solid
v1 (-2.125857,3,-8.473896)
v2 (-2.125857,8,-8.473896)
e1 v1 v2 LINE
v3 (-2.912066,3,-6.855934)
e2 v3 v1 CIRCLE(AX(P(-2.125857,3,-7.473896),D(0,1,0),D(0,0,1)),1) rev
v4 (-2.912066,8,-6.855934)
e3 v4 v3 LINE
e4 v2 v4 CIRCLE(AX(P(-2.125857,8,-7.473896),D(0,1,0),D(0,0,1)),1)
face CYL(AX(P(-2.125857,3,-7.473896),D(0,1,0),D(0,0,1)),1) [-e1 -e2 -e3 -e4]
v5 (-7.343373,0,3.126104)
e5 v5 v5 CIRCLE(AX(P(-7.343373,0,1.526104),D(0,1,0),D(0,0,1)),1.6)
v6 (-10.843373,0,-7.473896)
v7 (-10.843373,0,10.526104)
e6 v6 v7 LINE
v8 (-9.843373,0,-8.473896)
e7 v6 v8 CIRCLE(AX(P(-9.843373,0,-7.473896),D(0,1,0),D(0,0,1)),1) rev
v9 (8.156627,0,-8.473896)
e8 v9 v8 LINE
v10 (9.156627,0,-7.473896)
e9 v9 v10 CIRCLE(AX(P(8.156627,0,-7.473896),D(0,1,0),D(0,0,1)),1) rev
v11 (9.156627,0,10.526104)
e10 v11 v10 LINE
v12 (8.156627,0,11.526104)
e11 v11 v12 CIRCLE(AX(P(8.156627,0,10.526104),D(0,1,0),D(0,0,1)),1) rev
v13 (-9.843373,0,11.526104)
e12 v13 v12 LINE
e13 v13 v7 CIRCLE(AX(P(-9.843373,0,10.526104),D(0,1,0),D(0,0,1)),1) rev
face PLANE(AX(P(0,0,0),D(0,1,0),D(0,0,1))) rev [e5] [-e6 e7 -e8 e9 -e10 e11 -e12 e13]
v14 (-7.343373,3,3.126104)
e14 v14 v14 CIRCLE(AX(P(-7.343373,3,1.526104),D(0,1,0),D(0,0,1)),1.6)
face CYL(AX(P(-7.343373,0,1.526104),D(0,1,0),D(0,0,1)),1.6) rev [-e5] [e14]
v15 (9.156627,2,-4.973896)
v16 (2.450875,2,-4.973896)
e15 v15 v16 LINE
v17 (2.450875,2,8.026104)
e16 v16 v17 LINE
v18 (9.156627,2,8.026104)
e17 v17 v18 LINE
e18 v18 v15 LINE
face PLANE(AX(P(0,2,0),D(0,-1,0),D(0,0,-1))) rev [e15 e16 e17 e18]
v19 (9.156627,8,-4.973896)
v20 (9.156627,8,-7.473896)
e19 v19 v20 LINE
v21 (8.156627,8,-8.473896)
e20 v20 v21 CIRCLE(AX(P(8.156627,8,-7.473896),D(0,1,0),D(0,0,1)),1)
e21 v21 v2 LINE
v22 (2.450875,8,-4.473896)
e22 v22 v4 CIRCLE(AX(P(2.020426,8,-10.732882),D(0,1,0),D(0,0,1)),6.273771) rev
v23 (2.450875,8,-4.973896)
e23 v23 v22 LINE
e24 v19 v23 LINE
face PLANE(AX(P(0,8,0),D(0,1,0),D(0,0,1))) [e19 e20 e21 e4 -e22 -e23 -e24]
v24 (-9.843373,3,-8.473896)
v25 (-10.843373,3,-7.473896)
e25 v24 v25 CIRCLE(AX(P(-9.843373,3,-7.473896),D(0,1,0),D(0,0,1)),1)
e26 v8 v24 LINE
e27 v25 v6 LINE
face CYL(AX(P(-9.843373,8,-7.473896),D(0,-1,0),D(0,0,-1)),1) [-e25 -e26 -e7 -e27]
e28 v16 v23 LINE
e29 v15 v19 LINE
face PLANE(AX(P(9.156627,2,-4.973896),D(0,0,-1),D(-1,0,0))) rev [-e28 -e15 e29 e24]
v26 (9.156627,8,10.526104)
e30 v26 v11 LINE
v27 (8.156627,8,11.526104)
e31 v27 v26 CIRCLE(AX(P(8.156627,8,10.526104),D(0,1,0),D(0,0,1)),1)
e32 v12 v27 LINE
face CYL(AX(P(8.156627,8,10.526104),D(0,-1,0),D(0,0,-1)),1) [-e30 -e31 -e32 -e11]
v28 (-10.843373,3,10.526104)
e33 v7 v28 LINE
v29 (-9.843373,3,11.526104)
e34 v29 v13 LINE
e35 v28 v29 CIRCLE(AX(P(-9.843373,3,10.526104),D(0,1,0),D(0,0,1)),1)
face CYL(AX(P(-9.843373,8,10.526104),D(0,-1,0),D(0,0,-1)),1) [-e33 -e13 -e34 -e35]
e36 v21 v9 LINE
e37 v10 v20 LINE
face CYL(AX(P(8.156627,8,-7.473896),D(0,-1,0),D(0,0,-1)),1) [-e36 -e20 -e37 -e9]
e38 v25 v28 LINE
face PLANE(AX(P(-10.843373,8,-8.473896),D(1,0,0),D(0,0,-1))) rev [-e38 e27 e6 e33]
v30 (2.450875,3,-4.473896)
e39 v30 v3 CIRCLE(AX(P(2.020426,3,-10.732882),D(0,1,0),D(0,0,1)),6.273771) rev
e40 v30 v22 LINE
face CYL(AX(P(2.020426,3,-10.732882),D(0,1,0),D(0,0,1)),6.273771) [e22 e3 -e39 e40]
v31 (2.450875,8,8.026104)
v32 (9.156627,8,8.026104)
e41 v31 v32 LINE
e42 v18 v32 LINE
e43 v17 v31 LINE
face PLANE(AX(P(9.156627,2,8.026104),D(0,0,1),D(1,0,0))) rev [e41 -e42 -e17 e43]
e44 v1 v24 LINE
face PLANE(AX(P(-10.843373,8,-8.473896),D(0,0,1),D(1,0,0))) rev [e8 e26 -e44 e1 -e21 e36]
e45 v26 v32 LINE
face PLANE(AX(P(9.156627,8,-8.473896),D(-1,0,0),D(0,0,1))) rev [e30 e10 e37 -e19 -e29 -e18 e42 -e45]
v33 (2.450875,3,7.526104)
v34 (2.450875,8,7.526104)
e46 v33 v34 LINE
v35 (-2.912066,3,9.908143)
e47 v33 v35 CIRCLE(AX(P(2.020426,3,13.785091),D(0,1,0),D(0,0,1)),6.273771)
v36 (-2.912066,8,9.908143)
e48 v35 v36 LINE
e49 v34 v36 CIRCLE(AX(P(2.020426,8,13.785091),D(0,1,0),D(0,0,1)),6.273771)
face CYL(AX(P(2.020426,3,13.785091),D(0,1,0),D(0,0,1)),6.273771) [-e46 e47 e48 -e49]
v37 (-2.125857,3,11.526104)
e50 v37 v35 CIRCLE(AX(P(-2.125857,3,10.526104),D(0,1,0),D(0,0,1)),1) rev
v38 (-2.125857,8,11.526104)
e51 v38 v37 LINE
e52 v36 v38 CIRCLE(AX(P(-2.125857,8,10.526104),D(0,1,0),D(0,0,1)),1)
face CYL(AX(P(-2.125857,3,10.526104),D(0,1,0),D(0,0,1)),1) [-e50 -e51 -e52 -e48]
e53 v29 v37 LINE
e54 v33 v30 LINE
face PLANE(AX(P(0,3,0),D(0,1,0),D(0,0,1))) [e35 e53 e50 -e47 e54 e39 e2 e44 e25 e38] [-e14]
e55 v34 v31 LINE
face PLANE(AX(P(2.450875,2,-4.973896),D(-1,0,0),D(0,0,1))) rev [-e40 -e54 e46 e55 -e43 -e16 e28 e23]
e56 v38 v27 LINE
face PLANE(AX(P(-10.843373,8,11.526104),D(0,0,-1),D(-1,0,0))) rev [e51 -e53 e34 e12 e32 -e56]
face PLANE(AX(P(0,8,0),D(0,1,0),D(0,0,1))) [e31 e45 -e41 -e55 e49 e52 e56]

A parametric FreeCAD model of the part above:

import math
import FreeCAD as App
import Part
import Sketcher

V = App.Vector
Q = App.Units.Quantity


def edges_at(feature, points):
    """Names of the edges that pass closest to the given points."""
    edges = feature.Shape.Edges
    near = lambda p: min(range(len(edges)), key=lambda i: edges[i].distToShape(Part.Vertex(*p))[0])
    return sorted({f"Edge{near(p) + 1}" for p in points})


def add_polygon(sketch, points):
    """Adds a closed chain of lines whose ends are joined by coincident constraints."""
    first, n = sketch.GeometryCount, len(points)
    for a, b in zip(points, points[1:] + points[:1]):
        sketch.addGeometry(Part.LineSegment(App.Vector(*a, 0), App.Vector(*b, 0)), False)
    for i in range(n):
        sketch.addConstraint(Sketcher.Constraint("Coincident", first + i, 2, first + (i + 1) % n, 1))

doc = App.newDocument("Part")
body = doc.addObject("PartDesign::Body", "Body")

# Sketch on XZ plane
sketch1 = body.newObject("Sketcher::SketchObject", "Sketch")
sketch1.AttachmentSupport = (doc.getObject("XZ_Plane"), [""])
sketch1.MapMode = "FlatFace"
add_polygon(sketch1, [(-10.843373, -8.473896), (-10.843373, 11.526104), (9.156627, 11.526104), (9.156627, -8.473896)])  # lines 0-3
sketch1.addConstraint([
    Sketcher.Constraint("Vertical", 0),
    Sketcher.Constraint("Horizontal", 1),
    Sketcher.Constraint("Vertical", 2),
    Sketcher.Constraint("Horizontal", 3),
    Sketcher.Constraint("Equal", 3, 0),
    Sketcher.Constraint("DistanceX", 1, 1, 1, 2, Q("20 mm")),
    Sketcher.Constraint("DistanceX", 0, 2, -1, 1, Q("10.843373 mm")),
    Sketcher.Constraint("DistanceY", -1, 1, 0, 2, Q("11.526104 mm")),
])
pad1 = body.newObject("PartDesign::Pad", "Pad")
pad1.Profile = sketch1
pad1.Length = 8
pad1.Reversed = True

# Sketch on XZ plane
sketch2 = body.newObject("Sketcher::SketchObject", "Sketch001")
sketch2.AttachmentSupport = (doc.getObject("XZ_Plane"), [""])
sketch2.MapMode = "FlatFace"
sketch2.AttachmentOffset = App.Placement(V(0, 0, -8), App.Rotation())
add_polygon(sketch2, [(2.450875, -4.973896), (2.450875, 8.026104), (9.156627, 8.026104), (9.156627, -4.973896)])  # lines 0-3
sketch2.addConstraint([
    Sketcher.Constraint("Vertical", 0),
    Sketcher.Constraint("Horizontal", 1),
    Sketcher.Constraint("Vertical", 2),
    Sketcher.Constraint("Horizontal", 3),
    Sketcher.Constraint("DistanceY", 0, 1, 0, 2, Q("13 mm")),
    Sketcher.Constraint("DistanceX", 1, 1, 1, 2, Q("6.705751 mm")),
    Sketcher.Constraint("DistanceX", -1, 1, 0, 2, Q("2.450875 mm")),
    Sketcher.Constraint("DistanceY", -1, 1, 0, 2, Q("8.026104 mm")),
])
pocket1 = body.newObject("PartDesign::Pocket", "Pocket")
pocket1.Profile = sketch2
pocket1.Length = 6
pocket1.Reversed = True

# Sketch on XZ plane
sketch3 = body.newObject("Sketcher::SketchObject", "Sketch002")
sketch3.AttachmentSupport = (doc.getObject("XZ_Plane"), [""])
sketch3.MapMode = "FlatFace"
sketch3.AttachmentOffset = App.Placement(V(0, 0, -8), App.Rotation())
sketch3.addGeometry([
    Part.LineSegment(V(2.450875, 7.526104, 0), V(2.450875, -4.473896, 0)),  # 0
    Part.ArcOfCircle(Part.Circle(V(2.020426, -10.732882, 0), V(0, 0, 1), 6.273771), math.radians(86.065791), math.radians(93.934209)),  # 1
    Part.ArcOfCircle(Part.Circle(V(2.020426, -10.732882, 0), V(0, 0, 1), 6.273771), math.radians(93.934209), math.radians(158.895604)),  # 2
    Part.LineSegment(V(-3.832537, -8.473896, 0), V(-10.843373, -8.473896, 0)),  # 3
    Part.LineSegment(V(-10.843373, -8.473896, 0), V(-10.843373, 11.526104, 0)),  # 4
    Part.LineSegment(V(-10.843373, 11.526104, 0), V(-3.832537, 11.526104, 0)),  # 5
    Part.ArcOfCircle(Part.Circle(V(2.020426, 13.785091, 0), V(0, 0, 1), 6.273771), math.radians(-158.895604), math.radians(-93.934209)),  # 6
    Part.ArcOfCircle(Part.Circle(V(2.020426, 13.785091, 0), V(0, 0, 1), 6.273771), math.radians(-93.934209), math.radians(-86.065791)),  # 7
], False)
sketch3.addConstraint([
    Sketcher.Constraint("Coincident", 0, 2, 1, 1),
    Sketcher.Constraint("Tangent", 1, 2, 2, 1),
    Sketcher.Constraint("Coincident", 2, 2, 3, 1),
    Sketcher.Constraint("Coincident", 3, 2, 4, 1),
    Sketcher.Constraint("Coincident", 4, 2, 5, 1),
    Sketcher.Constraint("Coincident", 5, 2, 6, 1),
    Sketcher.Constraint("Tangent", 6, 2, 7, 1),
    Sketcher.Constraint("Coincident", 7, 2, 0, 1),
    Sketcher.Constraint("Vertical", 0),
    Sketcher.Constraint("Horizontal", 3),
    Sketcher.Constraint("Vertical", 4),
    Sketcher.Constraint("Horizontal", 5),
    Sketcher.Constraint("Equal", 1, 2),
    Sketcher.Constraint("Equal", 2, 6),
    Sketcher.Constraint("Equal", 6, 7),
    Sketcher.Constraint("Horizontal", 0, 2, 1, 2),
    Sketcher.Constraint("Horizontal", 6, 2, 7, 2),
    Sketcher.Constraint("Vertical", 2, 3, 6, 3),
    Sketcher.Constraint("Vertical", 2, 2, 5, 2),
    Sketcher.Constraint("DistanceY", 0, 2, 0, 1, Q("12 mm")),
    Sketcher.Constraint("DistanceY", 4, 1, 4, 2, Q("20 mm")),
    Sketcher.Constraint("Radius", 1, Q("6.273771 mm")),
    Sketcher.Constraint("DistanceX", 1, 2, 0, 2, Q("0.860899 mm")),
    Sketcher.Constraint("DistanceX", 3, 2, 2, 3, Q("12.863799 mm")),
    Sketcher.Constraint("DistanceY", -1, 1, 6, 3, Q("13.785091 mm")),
    Sketcher.Constraint("DistanceX", -1, 1, 1, 3, Q("2.020426 mm")),
])
pocket2 = body.newObject("PartDesign::Pocket", "Pocket001")
pocket2.Profile = sketch3
pocket2.Length = 5
pocket2.Reversed = True

# Sketch on XZ plane
sketch4 = body.newObject("Sketcher::SketchObject", "Sketch003")
sketch4.AttachmentSupport = (doc.getObject("XZ_Plane"), [""])
sketch4.MapMode = "FlatFace"
sketch4.AttachmentOffset = App.Placement(V(0, 0, -3), App.Rotation())
sketch4.addGeometry(Part.Circle(V(-7.343373, 1.526104, 0), V(0, 0, 1), 1.6), False)
sketch4.addConstraint([
    Sketcher.Constraint("Diameter", 0, Q("3.2 mm")),
    Sketcher.Constraint("DistanceX", 0, 3, -1, 1, Q("7.343373 mm")),
    Sketcher.Constraint("DistanceY", -1, 1, 0, 3, Q("1.526104 mm")),
])
pocket3 = body.newObject("PartDesign::Pocket", "Pocket002")
pocket3.Profile = sketch4
pocket3.Length = 3
pocket3.Reversed = True
doc.recompute()

fillet = body.newObject("PartDesign::Fillet", "Fillet")
fillet.Base = (pocket3, edges_at(pocket3, [
    (-10.843, 1.5, -8.474),
    (-10.843, 1.5, 11.526),
    (-3.833, 5.5, 11.526),
    (-3.833, 5.5, -8.474),
    (9.157, 4, -8.474),
    (9.157, 4, 11.526),
]))
fillet.Radius = 1

doc.recompute()
